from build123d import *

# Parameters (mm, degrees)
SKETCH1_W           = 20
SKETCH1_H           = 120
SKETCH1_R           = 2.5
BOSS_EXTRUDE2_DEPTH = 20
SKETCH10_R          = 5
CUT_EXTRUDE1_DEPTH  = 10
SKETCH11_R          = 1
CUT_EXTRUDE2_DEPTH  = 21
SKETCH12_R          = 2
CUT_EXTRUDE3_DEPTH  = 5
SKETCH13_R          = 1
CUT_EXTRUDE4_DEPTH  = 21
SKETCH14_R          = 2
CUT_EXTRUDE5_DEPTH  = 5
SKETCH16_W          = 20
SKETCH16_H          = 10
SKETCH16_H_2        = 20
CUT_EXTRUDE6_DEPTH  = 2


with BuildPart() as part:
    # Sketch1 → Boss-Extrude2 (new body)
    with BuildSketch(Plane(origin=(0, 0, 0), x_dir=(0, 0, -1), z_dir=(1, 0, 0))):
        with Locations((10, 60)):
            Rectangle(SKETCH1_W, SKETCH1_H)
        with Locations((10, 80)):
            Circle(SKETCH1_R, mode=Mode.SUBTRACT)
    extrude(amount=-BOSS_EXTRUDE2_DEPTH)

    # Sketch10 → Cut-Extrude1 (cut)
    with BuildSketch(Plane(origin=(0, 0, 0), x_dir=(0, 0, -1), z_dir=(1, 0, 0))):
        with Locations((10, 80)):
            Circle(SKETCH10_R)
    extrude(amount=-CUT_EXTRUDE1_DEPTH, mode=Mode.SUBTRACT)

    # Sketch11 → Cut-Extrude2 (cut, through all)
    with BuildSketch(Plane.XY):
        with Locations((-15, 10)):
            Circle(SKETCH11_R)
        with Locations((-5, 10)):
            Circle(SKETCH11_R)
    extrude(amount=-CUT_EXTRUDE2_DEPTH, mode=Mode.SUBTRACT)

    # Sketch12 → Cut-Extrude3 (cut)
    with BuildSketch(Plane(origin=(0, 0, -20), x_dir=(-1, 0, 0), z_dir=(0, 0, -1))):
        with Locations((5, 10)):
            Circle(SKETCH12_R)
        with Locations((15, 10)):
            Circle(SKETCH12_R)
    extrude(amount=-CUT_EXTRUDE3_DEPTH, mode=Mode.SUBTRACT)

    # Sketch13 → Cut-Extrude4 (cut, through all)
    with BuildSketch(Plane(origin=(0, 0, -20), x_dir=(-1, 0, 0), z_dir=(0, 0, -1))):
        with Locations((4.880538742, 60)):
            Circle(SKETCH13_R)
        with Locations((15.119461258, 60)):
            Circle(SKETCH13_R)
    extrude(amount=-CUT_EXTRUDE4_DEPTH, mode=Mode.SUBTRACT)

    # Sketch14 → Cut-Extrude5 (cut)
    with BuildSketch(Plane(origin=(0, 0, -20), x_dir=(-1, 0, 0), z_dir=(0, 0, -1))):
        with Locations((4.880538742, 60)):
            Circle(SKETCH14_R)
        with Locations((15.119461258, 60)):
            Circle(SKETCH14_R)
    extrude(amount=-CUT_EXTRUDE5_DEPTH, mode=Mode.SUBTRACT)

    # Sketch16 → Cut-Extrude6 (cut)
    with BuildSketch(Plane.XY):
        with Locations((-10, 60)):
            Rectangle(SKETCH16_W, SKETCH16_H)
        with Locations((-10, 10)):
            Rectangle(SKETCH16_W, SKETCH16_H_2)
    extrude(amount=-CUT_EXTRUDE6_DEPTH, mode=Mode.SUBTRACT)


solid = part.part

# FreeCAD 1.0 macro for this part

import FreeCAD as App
import Part
import Sketcher
Q = App.Units.Quantity

doc = App.newDocument("Part")
body = doc.addObject("PartDesign::Body", "Body")

sketch1 = body.newObject("Sketcher::SketchObject", "Sketch")
sketch1.AttachmentSupport = (doc.getObject("YZ_Plane"), [""])
sketch1.MapMode = "FlatFace"
sketch1.addGeometry(Part.LineSegment(App.Vector(120, 0, 0), App.Vector(0, 0, 0)), False)
sketch1.addGeometry(Part.LineSegment(App.Vector(0, 0, 0), App.Vector(0, -20, 0)), False)
sketch1.addGeometry(Part.LineSegment(App.Vector(0, -20, 0), App.Vector(120, -20, 0)), False)
sketch1.addGeometry(Part.LineSegment(App.Vector(120, -20, 0), App.Vector(120, 0, 0)), False)
sketch1.addGeometry(Part.Circle(App.Vector(80, -10, 0), App.Vector(0, 0, 1), 2.5), False)
sketch1.addConstraint(Sketcher.Constraint("Coincident", 0, 2, 1, 1))
sketch1.addConstraint(Sketcher.Constraint("Coincident", 1, 2, 2, 1))
sketch1.addConstraint(Sketcher.Constraint("Coincident", 2, 2, 3, 1))
sketch1.addConstraint(Sketcher.Constraint("Coincident", 3, 2, 0, 1))
sketch1.addConstraint(Sketcher.Constraint("Horizontal", 0))
sketch1.addConstraint(Sketcher.Constraint("Vertical", 1))
sketch1.addConstraint(Sketcher.Constraint("Horizontal", 2))
sketch1.addConstraint(Sketcher.Constraint("Vertical", 3))
sketch1.addConstraint(Sketcher.Constraint("Coincident", 0, 2, -1, 1))
sketch1.addConstraint(Sketcher.Constraint("Diameter", 4, Q("5 mm")))
sketch1.addConstraint(Sketcher.Constraint("DistanceX", 0, 2, 0, 1, Q("120 mm")))
sketch1.addConstraint(Sketcher.Constraint("DistanceY", 1, 2, 1, 1, Q("20 mm")))
sketch1.addConstraint(Sketcher.Constraint("DistanceX", -1, 1, 4, 3, Q("80 mm")))
sketch1.addConstraint(Sketcher.Constraint("DistanceY", 4, 3, -1, 1, Q("10 mm")))
pad1 = body.newObject("PartDesign::Pad", "Pad")
pad1.Profile = sketch1
pad1.Length = 20
pad1.Reversed = True

sketch2 = body.newObject("Sketcher::SketchObject", "Sketch001")
sketch2.AttachmentSupport = (doc.getObject("YZ_Plane"), [""])
sketch2.MapMode = "FlatFace"
sketch2.addGeometry(Part.Circle(App.Vector(80, -10, 0), App.Vector(0, 0, 1), 5), False)
sketch2.addConstraint(Sketcher.Constraint("Diameter", 0, Q("10 mm")))
sketch2.addConstraint(Sketcher.Constraint("DistanceX", -1, 1, 0, 3, Q("80 mm")))
sketch2.addConstraint(Sketcher.Constraint("DistanceY", 0, 3, -1, 1, Q("10 mm")))
pocket1 = body.newObject("PartDesign::Pocket", "Pocket")
pocket1.Profile = sketch2
pocket1.Length = 10

sketch3 = body.newObject("Sketcher::SketchObject", "Sketch002")
sketch3.AttachmentSupport = (doc.getObject("XY_Plane"), [""])
sketch3.MapMode = "FlatFace"
sketch3.addGeometry(Part.Circle(App.Vector(-15, 10, 0), App.Vector(0, 0, 1), 1), False)
sketch3.addGeometry(Part.Circle(App.Vector(-5, 10, 0), App.Vector(0, 0, 1), 1), False)
sketch3.addConstraint(Sketcher.Constraint("Equal", 0, 1))
sketch3.addConstraint(Sketcher.Constraint("Horizontal", 0, 3, 1, 3))
sketch3.addConstraint(Sketcher.Constraint("Diameter", 0, Q("2 mm")))
sketch3.addConstraint(Sketcher.Constraint("DistanceX", 0, 3, -1, 1, Q("15 mm")))
sketch3.addConstraint(Sketcher.Constraint("DistanceY", -1, 1, 0, 3, Q("10 mm")))
sketch3.addConstraint(Sketcher.Constraint("DistanceX", 1, 3, -1, 1, Q("5 mm")))
pocket2 = body.newObject("PartDesign::Pocket", "Pocket001")
pocket2.Profile = sketch3
pocket2.Type = "ThroughAll"

sketch4 = body.newObject("Sketcher::SketchObject", "Sketch003")
sketch4.AttachmentSupport = (doc.getObject("XY_Plane"), [""])
sketch4.MapMode = "FlatFace"
sketch4.AttachmentOffset = App.Placement(App.Vector(0, 0, -20), App.Rotation())
sketch4.addGeometry(Part.Circle(App.Vector(-5, 10, 0), App.Vector(0, 0, 1), 2), False)
sketch4.addGeometry(Part.Circle(App.Vector(-15, 10, 0), App.Vector(0, 0, 1), 2), False)
sketch4.addConstraint(Sketcher.Constraint("Equal", 0, 1))
sketch4.addConstraint(Sketcher.Constraint("Horizontal", 0, 3, 1, 3))
sketch4.addConstraint(Sketcher.Constraint("Diameter", 0, Q("4 mm")))
sketch4.addConstraint(Sketcher.Constraint("DistanceX", 0, 3, -1, 1, Q("5 mm")))
sketch4.addConstraint(Sketcher.Constraint("DistanceY", -1, 1, 0, 3, Q("10 mm")))
sketch4.addConstraint(Sketcher.Constraint("DistanceX", 1, 3, -1, 1, Q("15 mm")))
pocket3 = body.newObject("PartDesign::Pocket", "Pocket002")
pocket3.Profile = sketch4
pocket3.Length = 5
pocket3.Reversed = True

sketch5 = body.newObject("Sketcher::SketchObject", "Sketch004")
sketch5.AttachmentSupport = (doc.getObject("XY_Plane"), [""])
sketch5.MapMode = "FlatFace"
sketch5.AttachmentOffset = App.Placement(App.Vector(0, 0, -20), App.Rotation())
sketch5.addGeometry(Part.Circle(App.Vector(-4.9, 60, 0), App.Vector(0, 0, 1), 1), False)
sketch5.addGeometry(Part.Circle(App.Vector(-15.1, 60, 0), App.Vector(0, 0, 1), 1), False)
sketch5.addConstraint(Sketcher.Constraint("Equal", 0, 1))
sketch5.addConstraint(Sketcher.Constraint("Horizontal", 0, 3, 1, 3))
sketch5.addConstraint(Sketcher.Constraint("Diameter", 0, Q("2 mm")))
sketch5.addConstraint(Sketcher.Constraint("DistanceY", -1, 1, 0, 3, Q("60 mm")))
sketch5.addConstraint(Sketcher.Constraint("DistanceX", 0, 3, -1, 1, Q("4.880539 mm")))
sketch5.addConstraint(Sketcher.Constraint("DistanceX", 1, 3, -1, 1, Q("15.119461 mm")))
pocket4 = body.newObject("PartDesign::Pocket", "Pocket003")
pocket4.Profile = sketch5
pocket4.Type = "ThroughAll"
pocket4.Reversed = True

sketch6 = body.newObject("Sketcher::SketchObject", "Sketch005")
sketch6.AttachmentSupport = (doc.getObject("XY_Plane"), [""])
sketch6.MapMode = "FlatFace"
sketch6.AttachmentOffset = App.Placement(App.Vector(0, 0, -20), App.Rotation())
sketch6.addGeometry(Part.Circle(App.Vector(-4.9, 60, 0), App.Vector(0, 0, 1), 2), False)
sketch6.addGeometry(Part.Circle(App.Vector(-15.1, 60, 0), App.Vector(0, 0, 1), 2), False)
sketch6.addConstraint(Sketcher.Constraint("Equal", 0, 1))
sketch6.addConstraint(Sketcher.Constraint("Horizontal", 0, 3, 1, 3))
sketch6.addConstraint(Sketcher.Constraint("Diameter", 0, Q("4 mm")))
sketch6.addConstraint(Sketcher.Constraint("DistanceY", -1, 1, 0, 3, Q("60 mm")))
sketch6.addConstraint(Sketcher.Constraint("DistanceX", 0, 3, -1, 1, Q("4.880539 mm")))
sketch6.addConstraint(Sketcher.Constraint("DistanceX", 1, 3, -1, 1, Q("15.119461 mm")))
pocket5 = body.newObject("PartDesign::Pocket", "Pocket004")
pocket5.Profile = sketch6
pocket5.Length = 5
pocket5.Reversed = True

sketch7 = body.newObject("Sketcher::SketchObject", "Sketch006")
sketch7.AttachmentSupport = (doc.getObject("XY_Plane"), [""])
sketch7.MapMode = "FlatFace"
sketch7.addGeometry(Part.LineSegment(App.Vector(-20, 65, 0), App.Vector(-20, 55, 0)), False)
sketch7.addGeometry(Part.LineSegment(App.Vector(-20, 55, 0), App.Vector(0, 55, 0)), False)
sketch7.addGeometry(Part.LineSegment(App.Vector(0, 55, 0), App.Vector(0, 65, 0)), False)
sketch7.addGeometry(Part.LineSegment(App.Vector(0, 65, 0), App.Vector(-20, 65, 0)), False)
sketch7.addGeometry(Part.LineSegment(App.Vector(-20, 20, 0), App.Vector(-20, 0, 0)), False)
sketch7.addGeometry(Part.LineSegment(App.Vector(-20, 0, 0), App.Vector(0, 0, 0)), False)
sketch7.addGeometry(Part.LineSegment(App.Vector(0, 0, 0), App.Vector(0, 20, 0)), False)
sketch7.addGeometry(Part.LineSegment(App.Vector(0, 20, 0), App.Vector(-20, 20, 0)), False)
sketch7.addConstraint(Sketcher.Constraint("Coincident", 0, 2, 1, 1))
sketch7.addConstraint(Sketcher.Constraint("Coincident", 1, 2, 2, 1))
sketch7.addConstraint(Sketcher.Constraint("Coincident", 2, 2, 3, 1))
sketch7.addConstraint(Sketcher.Constraint("Coincident", 3, 2, 0, 1))
sketch7.addConstraint(Sketcher.Constraint("Coincident", 4, 2, 5, 1))
sketch7.addConstraint(Sketcher.Constraint("Coincident", 5, 2, 6, 1))
sketch7.addConstraint(Sketcher.Constraint("Coincident", 6, 2, 7, 1))
sketch7.addConstraint(Sketcher.Constraint("Coincident", 7, 2, 4, 1))
sketch7.addConstraint(Sketcher.Constraint("Vertical", 0))
sketch7.addConstraint(Sketcher.Constraint("Horizontal", 1))
sketch7.addConstraint(Sketcher.Constraint("Vertical", 2))
sketch7.addConstraint(Sketcher.Constraint("Horizontal", 3))
sketch7.addConstraint(Sketcher.Constraint("Vertical", 4))
sketch7.addConstraint(Sketcher.Constraint("Horizontal", 5))
sketch7.addConstraint(Sketcher.Constraint("Vertical", 6))
sketch7.addConstraint(Sketcher.Constraint("Horizontal", 7))
sketch7.addConstraint(Sketcher.Constraint("Coincident", 5, 2, -1, 1))
sketch7.addConstraint(Sketcher.Constraint("PointOnObject", 1, 2, -2))
sketch7.addConstraint(Sketcher.Constraint("Vertical", 3, 2, 4, 2))
sketch7.addConstraint(Sketcher.Constraint("Equal", 7, 4))
sketch7.addConstraint(Sketcher.Constraint("DistanceX", 1, 1, 1, 2, Q("20 mm")))
sketch7.addConstraint(Sketcher.Constraint("DistanceY", 0, 2, 0, 1, Q("10 mm")))
sketch7.addConstraint(Sketcher.Constraint("DistanceY", -1, 1, 0, 2, Q("55 mm")))
pocket6 = body.newObject("PartDesign::Pocket", "Pocket005")
pocket6.Profile = sketch7
pocket6.Length = 2

doc.recompute()
